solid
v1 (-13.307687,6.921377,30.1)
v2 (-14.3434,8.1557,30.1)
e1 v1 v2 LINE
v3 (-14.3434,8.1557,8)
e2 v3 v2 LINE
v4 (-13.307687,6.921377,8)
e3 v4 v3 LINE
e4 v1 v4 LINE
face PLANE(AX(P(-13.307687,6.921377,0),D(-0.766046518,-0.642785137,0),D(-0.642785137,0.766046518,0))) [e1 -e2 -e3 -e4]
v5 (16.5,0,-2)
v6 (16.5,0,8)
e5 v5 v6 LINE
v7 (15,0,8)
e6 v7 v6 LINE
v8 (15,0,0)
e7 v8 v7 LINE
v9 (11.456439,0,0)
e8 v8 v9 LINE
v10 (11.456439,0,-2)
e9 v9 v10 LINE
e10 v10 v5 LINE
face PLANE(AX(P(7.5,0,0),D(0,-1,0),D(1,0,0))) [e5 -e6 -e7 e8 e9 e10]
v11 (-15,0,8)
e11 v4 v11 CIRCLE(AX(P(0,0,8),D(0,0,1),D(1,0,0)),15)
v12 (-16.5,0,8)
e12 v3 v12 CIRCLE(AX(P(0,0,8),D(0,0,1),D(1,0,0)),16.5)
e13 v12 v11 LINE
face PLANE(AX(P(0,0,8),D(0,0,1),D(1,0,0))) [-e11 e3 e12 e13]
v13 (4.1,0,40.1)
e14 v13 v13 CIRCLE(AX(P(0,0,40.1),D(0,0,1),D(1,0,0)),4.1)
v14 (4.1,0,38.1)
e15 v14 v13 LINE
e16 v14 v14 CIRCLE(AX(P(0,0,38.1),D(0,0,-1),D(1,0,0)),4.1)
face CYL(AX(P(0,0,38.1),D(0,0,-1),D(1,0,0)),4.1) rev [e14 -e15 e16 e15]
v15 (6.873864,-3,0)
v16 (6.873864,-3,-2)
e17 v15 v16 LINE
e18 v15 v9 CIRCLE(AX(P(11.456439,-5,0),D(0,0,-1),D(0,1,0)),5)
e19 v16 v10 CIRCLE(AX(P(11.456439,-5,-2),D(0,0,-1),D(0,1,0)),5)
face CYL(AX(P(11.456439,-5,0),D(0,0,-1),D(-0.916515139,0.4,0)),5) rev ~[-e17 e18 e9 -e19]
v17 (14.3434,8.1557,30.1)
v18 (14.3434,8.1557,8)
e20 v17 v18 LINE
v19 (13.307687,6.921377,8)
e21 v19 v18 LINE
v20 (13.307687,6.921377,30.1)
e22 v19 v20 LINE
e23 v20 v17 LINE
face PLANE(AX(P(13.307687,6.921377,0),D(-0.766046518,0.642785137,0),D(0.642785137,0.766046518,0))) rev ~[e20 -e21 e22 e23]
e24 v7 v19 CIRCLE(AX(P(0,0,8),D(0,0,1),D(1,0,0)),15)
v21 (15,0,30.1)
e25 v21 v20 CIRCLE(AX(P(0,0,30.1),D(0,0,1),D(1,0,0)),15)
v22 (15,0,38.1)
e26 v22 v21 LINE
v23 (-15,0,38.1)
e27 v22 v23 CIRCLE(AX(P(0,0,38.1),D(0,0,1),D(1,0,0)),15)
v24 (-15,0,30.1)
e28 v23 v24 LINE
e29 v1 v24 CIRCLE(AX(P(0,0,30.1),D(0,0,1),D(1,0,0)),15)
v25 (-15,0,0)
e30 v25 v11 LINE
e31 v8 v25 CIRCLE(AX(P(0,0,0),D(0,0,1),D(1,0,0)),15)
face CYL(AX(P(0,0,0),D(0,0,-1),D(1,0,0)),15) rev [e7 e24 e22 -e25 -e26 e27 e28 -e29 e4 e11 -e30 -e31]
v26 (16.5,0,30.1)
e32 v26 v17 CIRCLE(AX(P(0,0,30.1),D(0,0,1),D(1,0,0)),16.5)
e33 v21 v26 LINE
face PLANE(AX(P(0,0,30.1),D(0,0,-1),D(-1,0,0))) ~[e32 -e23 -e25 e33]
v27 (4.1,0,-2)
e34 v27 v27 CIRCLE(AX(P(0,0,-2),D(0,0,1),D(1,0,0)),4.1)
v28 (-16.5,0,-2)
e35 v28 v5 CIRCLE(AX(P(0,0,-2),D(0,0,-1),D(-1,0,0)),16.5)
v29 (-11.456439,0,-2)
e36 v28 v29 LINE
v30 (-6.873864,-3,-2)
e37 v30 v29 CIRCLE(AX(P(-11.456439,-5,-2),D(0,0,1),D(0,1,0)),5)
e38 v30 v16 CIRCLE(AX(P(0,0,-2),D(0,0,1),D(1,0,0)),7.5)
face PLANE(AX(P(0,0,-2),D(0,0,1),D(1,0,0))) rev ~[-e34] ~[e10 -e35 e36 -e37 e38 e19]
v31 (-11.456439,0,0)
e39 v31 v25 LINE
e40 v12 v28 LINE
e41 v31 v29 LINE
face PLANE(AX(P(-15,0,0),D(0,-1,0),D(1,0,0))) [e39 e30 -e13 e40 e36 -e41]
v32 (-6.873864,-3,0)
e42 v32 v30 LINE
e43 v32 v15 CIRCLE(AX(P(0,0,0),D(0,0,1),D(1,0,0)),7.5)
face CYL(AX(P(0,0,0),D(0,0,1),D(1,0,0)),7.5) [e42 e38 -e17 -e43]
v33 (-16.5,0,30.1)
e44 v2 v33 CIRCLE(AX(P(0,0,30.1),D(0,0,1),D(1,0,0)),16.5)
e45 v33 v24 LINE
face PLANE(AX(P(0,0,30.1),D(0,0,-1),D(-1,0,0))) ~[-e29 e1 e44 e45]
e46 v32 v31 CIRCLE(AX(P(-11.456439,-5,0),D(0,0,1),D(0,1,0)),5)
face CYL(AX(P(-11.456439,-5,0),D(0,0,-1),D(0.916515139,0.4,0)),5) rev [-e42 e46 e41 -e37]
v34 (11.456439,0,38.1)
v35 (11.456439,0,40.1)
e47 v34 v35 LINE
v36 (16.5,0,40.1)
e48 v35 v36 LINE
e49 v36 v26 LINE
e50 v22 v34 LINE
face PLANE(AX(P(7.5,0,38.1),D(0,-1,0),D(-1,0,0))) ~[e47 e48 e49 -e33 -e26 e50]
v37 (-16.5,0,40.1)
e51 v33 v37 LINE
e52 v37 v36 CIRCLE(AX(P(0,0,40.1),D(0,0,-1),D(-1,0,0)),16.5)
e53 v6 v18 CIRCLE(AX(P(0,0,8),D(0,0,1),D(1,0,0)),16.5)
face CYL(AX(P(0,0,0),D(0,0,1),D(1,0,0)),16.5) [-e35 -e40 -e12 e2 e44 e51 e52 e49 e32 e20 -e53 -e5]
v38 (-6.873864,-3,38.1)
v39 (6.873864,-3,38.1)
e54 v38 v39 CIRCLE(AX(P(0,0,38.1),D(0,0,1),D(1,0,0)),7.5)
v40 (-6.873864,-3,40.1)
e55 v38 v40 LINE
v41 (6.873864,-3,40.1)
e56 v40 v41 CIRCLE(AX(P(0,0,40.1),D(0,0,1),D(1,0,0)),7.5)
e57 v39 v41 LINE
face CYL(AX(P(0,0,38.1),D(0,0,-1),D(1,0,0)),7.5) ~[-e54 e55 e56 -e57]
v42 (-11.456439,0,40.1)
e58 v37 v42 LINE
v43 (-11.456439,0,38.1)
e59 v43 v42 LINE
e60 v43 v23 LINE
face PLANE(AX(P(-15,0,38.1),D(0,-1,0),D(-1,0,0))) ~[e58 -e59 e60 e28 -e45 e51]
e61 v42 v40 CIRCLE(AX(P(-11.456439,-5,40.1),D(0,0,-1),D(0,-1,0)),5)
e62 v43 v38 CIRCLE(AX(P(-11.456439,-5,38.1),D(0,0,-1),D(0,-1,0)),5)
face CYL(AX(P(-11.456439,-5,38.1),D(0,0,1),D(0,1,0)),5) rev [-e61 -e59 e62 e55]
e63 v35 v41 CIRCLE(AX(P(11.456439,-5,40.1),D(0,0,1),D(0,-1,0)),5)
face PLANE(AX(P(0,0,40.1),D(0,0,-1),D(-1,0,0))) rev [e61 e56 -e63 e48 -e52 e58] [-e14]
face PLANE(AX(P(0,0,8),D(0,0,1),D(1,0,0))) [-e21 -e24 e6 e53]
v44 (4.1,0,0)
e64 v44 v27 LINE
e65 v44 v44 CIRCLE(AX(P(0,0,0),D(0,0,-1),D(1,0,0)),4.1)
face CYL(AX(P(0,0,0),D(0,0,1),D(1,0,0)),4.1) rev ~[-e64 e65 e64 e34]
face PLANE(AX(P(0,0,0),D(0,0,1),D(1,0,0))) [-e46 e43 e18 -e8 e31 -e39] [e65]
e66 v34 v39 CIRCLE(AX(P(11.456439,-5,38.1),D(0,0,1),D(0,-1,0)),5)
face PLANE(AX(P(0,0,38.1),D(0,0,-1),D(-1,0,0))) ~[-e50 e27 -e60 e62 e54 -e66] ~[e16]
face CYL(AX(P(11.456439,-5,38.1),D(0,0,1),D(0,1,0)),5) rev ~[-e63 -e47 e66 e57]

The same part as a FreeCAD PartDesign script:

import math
import FreeCAD as App
import Part
import Sketcher
from FreeCAD import Vector
Q = App.Units.Quantity


def edges_at(feature, points):
    """Names of the edges that pass closest to the given points."""
    edges = feature.Shape.Edges
    near = lambda p: min(range(len(edges)), key=lambda i: edges[i].distToShape(Part.Vertex(*p))[0])
    return sorted({f"Edge{near(p) + 1}" for p in points})

doc = App.newDocument("Part")
params = doc.addObject("Spreadsheet::Sheet", "Params")
for row, (alias, value) in enumerate([
    ("sketch1_radius", "15 mm"),
    ("sketch1_radius2", "16.5 mm"),
    ("pad1_length", "19.05 mm"),
    ("sketch2_diameter", "8.2 mm"),
    ("sketch2_radius", "7.5 mm"),
    ("sketch2_radius2", "16.5 mm"),
    ("pad2_length", "2 mm"),
    ("sketch3_radius", "15 mm"),
    ("sketch3_radius2", "16.5 mm"),
    ("pad3_length", "8 mm"),
    ("fillet_radius", "5 mm"),
], start=1):
    params.set(f"A{row}", alias)
    params.set(f"B{row}", "=" + value)
    params.setAlias(f"B{row}", alias)

body = doc.addObject("PartDesign::Body", "Body")

sketch1 = doc.addObject("Sketcher::SketchObject", "Sketch")
body.addObject(sketch1)
sketch1.AttachmentSupport = (doc.XY_Plane, [""])
sketch1.MapMode = "FlatFace"
sketch1.addGeometry([
    Part.ArcOfCircle(Part.Circle(Vector(0, 0, 0), Vector(0, 0, 1), 15), math.radians(27), math.radians(153)),
    Part.LineSegment(Vector(13.3, 6.9, 0), Vector(14.3, 8.2, 0)),
    Part.ArcOfCircle(Part.Circle(Vector(0, 0, 0), Vector(0, 0, 1), 16.5), math.radians(30), math.radians(150)),
    Part.LineSegment(Vector(-14.3, 8.2, 0), Vector(-13.3, 6.9, 0)),
], False)
sketch1.addConstraint([
    Sketcher.Constraint("Coincident", 0, 1, 1, 1),
    Sketcher.Constraint("Coincident", 1, 2, 2, 1),
    Sketcher.Constraint("Coincident", 2, 2, 3, 1),
    Sketcher.Constraint("Coincident", 3, 2, 0, 2),
    Sketcher.Constraint("Coincident", 0, 3, -1, 1),
    Sketcher.Constraint("Coincident", 2, 3, -1, 1),
    Sketcher.Constraint("Horizontal", 1, 2, 2, 2),
    Sketcher.Constraint("Horizontal", 0, 1, 3, 2),
    Sketcher.Constraint("Radius", 0, 15.0),
    Sketcher.Constraint("Radius", 2, 16.5),
    Sketcher.Constraint("Angle", 1, Q("50.0002 deg")),
    Sketcher.Constraint("DistanceX", 3, 2, 1, 2, 27.651),
])
sketch1.setExpression("Constraints[8]", "Params.sketch1_radius")
sketch1.setExpression("Constraints[9]", "Params.sketch1_radius2")
pad1 = doc.addObject("PartDesign::Pad", "Pad")
body.addObject(pad1)
pad1.Profile = sketch1
pad1.setExpression("Length", "Params.pad1_length")

sketch2 = doc.addObject("Sketcher::SketchObject", "Sketch001")
body.addObject(sketch2)
sketch2.AttachmentSupport = (doc.XY_Plane, [""])
sketch2.MapMode = "FlatFace"
sketch2.addGeometry([
    Part.ArcOfCircle(Part.Circle(Vector(0, 0, 0), Vector(0, 0, 1), 7.5), math.radians(180), math.radians(360)),
    Part.LineSegment(Vector(7.5, 0, 0), Vector(16.5, 0, 0)),
    Part.ArcOfCircle(Part.Circle(Vector(0, 0, 0), Vector(0, 0, 1), 16.5), math.radians(0), math.radians(180)),
    Part.LineSegment(Vector(-16.5, 0, 0), Vector(-7.5, 0, 0)),
    Part.Circle(Vector(0, 0, 0), Vector(0, 0, 1), 4.1),
], False)
sketch2.addConstraint([
    Sketcher.Constraint("Coincident", 0, 2, 1, 1),
    Sketcher.Constraint("Coincident", 1, 2, 2, 1),
    Sketcher.Constraint("Coincident", 2, 2, 3, 1),
    Sketcher.Constraint("Coincident", 3, 2, 0, 1),
    Sketcher.Constraint("Horizontal", 1),
    Sketcher.Constraint("Horizontal", 3),
    Sketcher.Constraint("Coincident", 0, 3, -1, 1),
    Sketcher.Constraint("Coincident", 2, 3, -1, 1),
    Sketcher.Constraint("Coincident", 4, 3, -1, 1),
    Sketcher.Constraint("PointOnObject", 0, 2, -1),
    Sketcher.Constraint("PointOnObject", 2, 2, -1),
    Sketcher.Constraint("Diameter", 4, 8.2),
    Sketcher.Constraint("Radius", 0, 7.5),
    Sketcher.Constraint("Radius", 2, 16.5),
])
sketch2.setExpression("Constraints[11]", "Params.sketch2_diameter")
sketch2.setExpression("Constraints[12]", "Params.sketch2_radius")
sketch2.setExpression("Constraints[13]", "Params.sketch2_radius2")
pad2 = doc.addObject("PartDesign::Pad", "Pad001")
body.addObject(pad2)
pad2.Profile = sketch2
pad2.setExpression("Length", "Params.pad2_length")
pad2.Reversed = True

sketch3 = doc.addObject("Sketcher::SketchObject", "Sketch002")
body.addObject(sketch3)
sketch3.AttachmentSupport = (doc.XY_Plane, [""])
sketch3.MapMode = "FlatFace"
sketch3.addGeometry([
    Part.ArcOfCircle(Part.Circle(Vector(0, 0, 0), Vector(0, 0, 1), 15), math.radians(0), math.radians(27)),
    Part.LineSegment(Vector(15, 0, 0), Vector(16.5, 0, 0)),
    Part.ArcOfCircle(Part.Circle(Vector(0, 0, 0), Vector(0, 0, 1), 16.5), math.radians(0), math.radians(30)),
    Part.LineSegment(Vector(14.3, 8.2, 0), Vector(13.3, 6.9, 0)),
    Part.LineSegment(Vector(-16.5, 0, 0), Vector(-15, 0, 0)),
    Part.ArcOfCircle(Part.Circle(Vector(0, 0, 0), Vector(0, 0, 1), 15), math.radians(153), math.radians(180)),
    Part.LineSegment(Vector(-13.3, 6.9, 0), Vector(-14.3, 8.2, 0)),
    Part.ArcOfCircle(Part.Circle(Vector(0, 0, 0), Vector(0, 0, 1), 16.5), math.radians(150), math.radians(180)),
], False)
sketch3.addConstraint([
    Sketcher.Constraint("Coincident", 0, 1, 1, 1),
    Sketcher.Constraint("Coincident", 1, 2, 2, 1),
    Sketcher.Constraint("Coincident", 2, 2, 3, 1),
    Sketcher.Constraint("Coincident", 3, 2, 0, 2),
    Sketcher.Constraint("Coincident", 4, 2, 5, 2),
    Sketcher.Constraint("Coincident", 5, 1, 6, 1),
    Sketcher.Constraint("Coincident", 6, 2, 7, 1),
    Sketcher.Constraint("Coincident", 7, 2, 4, 1),
    Sketcher.Constraint("Horizontal", 1),
    Sketcher.Constraint("Horizontal", 4),
    Sketcher.Constraint("Coincident", 0, 3, -1, 1),
    Sketcher.Constraint("Coincident", 2, 3, -1, 1),
    Sketcher.Constraint("Coincident", 5, 3, -1, 1),
    Sketcher.Constraint("Coincident", 7, 3, -1, 1),
    Sketcher.Constraint("Equal", 0, 5),
    Sketcher.Constraint("Equal", 2, 7),
    Sketcher.Constraint("PointOnObject", 0, 1, -1),
    Sketcher.Constraint("PointOnObject", 4, 2, -1),
    Sketcher.Constraint("Horizontal", 3, 2, 5, 1),
    Sketcher.Constraint("Horizontal", 2, 2, 6, 2),
    Sketcher.Constraint("Radius", 0, 15.0),
    Sketcher.Constraint("Radius", 2, 16.5),
    Sketcher.Constraint("Angle", 3, Q("-129.9998 deg")),
    Sketcher.Constraint("Distance", 3, 1.6113),
])
sketch3.setExpression("Constraints[20]", "Params.sketch3_radius")
sketch3.setExpression("Constraints[21]", "Params.sketch3_radius2")
pad3 = doc.addObject("PartDesign::Pad", "Pad002")
body.addObject(pad3)
pad3.Profile = sketch3
pad3.setExpression("Length", "Params.pad3_length")
doc.recompute()

datumplane = doc.addObject("PartDesign::Plane", "DatumPlane")
body.addObject(datumplane)
datumplane.AttachmentSupport = (doc.XY_Plane, [""])
datumplane.MapMode = "FlatFace"
datumplane.AttachmentOffset = App.Placement(Vector(0, 0, 19.05), App.Rotation())
mirrored = doc.addObject("PartDesign::Mirrored", "Mirrored")
body.addObject(mirrored)
mirrored.TransformMode = "Transform body"
mirrored.MirrorPlane = (datumplane, [""])
body.Tip = mirrored
doc.recompute()

fillet = doc.addObject("PartDesign::Fillet", "Fillet")
body.addObject(fillet)
fillet.Base = (mirrored, edges_at(mirrored, [
    (-7.5, 0, -1),
    (7.5, 0, -1),
    (7.5, 0, 39.1),
    (-7.5, 0, 39.1),
]))
fillet.setExpression("Radius", "Params.fillet_radius")

doc.recompute()
